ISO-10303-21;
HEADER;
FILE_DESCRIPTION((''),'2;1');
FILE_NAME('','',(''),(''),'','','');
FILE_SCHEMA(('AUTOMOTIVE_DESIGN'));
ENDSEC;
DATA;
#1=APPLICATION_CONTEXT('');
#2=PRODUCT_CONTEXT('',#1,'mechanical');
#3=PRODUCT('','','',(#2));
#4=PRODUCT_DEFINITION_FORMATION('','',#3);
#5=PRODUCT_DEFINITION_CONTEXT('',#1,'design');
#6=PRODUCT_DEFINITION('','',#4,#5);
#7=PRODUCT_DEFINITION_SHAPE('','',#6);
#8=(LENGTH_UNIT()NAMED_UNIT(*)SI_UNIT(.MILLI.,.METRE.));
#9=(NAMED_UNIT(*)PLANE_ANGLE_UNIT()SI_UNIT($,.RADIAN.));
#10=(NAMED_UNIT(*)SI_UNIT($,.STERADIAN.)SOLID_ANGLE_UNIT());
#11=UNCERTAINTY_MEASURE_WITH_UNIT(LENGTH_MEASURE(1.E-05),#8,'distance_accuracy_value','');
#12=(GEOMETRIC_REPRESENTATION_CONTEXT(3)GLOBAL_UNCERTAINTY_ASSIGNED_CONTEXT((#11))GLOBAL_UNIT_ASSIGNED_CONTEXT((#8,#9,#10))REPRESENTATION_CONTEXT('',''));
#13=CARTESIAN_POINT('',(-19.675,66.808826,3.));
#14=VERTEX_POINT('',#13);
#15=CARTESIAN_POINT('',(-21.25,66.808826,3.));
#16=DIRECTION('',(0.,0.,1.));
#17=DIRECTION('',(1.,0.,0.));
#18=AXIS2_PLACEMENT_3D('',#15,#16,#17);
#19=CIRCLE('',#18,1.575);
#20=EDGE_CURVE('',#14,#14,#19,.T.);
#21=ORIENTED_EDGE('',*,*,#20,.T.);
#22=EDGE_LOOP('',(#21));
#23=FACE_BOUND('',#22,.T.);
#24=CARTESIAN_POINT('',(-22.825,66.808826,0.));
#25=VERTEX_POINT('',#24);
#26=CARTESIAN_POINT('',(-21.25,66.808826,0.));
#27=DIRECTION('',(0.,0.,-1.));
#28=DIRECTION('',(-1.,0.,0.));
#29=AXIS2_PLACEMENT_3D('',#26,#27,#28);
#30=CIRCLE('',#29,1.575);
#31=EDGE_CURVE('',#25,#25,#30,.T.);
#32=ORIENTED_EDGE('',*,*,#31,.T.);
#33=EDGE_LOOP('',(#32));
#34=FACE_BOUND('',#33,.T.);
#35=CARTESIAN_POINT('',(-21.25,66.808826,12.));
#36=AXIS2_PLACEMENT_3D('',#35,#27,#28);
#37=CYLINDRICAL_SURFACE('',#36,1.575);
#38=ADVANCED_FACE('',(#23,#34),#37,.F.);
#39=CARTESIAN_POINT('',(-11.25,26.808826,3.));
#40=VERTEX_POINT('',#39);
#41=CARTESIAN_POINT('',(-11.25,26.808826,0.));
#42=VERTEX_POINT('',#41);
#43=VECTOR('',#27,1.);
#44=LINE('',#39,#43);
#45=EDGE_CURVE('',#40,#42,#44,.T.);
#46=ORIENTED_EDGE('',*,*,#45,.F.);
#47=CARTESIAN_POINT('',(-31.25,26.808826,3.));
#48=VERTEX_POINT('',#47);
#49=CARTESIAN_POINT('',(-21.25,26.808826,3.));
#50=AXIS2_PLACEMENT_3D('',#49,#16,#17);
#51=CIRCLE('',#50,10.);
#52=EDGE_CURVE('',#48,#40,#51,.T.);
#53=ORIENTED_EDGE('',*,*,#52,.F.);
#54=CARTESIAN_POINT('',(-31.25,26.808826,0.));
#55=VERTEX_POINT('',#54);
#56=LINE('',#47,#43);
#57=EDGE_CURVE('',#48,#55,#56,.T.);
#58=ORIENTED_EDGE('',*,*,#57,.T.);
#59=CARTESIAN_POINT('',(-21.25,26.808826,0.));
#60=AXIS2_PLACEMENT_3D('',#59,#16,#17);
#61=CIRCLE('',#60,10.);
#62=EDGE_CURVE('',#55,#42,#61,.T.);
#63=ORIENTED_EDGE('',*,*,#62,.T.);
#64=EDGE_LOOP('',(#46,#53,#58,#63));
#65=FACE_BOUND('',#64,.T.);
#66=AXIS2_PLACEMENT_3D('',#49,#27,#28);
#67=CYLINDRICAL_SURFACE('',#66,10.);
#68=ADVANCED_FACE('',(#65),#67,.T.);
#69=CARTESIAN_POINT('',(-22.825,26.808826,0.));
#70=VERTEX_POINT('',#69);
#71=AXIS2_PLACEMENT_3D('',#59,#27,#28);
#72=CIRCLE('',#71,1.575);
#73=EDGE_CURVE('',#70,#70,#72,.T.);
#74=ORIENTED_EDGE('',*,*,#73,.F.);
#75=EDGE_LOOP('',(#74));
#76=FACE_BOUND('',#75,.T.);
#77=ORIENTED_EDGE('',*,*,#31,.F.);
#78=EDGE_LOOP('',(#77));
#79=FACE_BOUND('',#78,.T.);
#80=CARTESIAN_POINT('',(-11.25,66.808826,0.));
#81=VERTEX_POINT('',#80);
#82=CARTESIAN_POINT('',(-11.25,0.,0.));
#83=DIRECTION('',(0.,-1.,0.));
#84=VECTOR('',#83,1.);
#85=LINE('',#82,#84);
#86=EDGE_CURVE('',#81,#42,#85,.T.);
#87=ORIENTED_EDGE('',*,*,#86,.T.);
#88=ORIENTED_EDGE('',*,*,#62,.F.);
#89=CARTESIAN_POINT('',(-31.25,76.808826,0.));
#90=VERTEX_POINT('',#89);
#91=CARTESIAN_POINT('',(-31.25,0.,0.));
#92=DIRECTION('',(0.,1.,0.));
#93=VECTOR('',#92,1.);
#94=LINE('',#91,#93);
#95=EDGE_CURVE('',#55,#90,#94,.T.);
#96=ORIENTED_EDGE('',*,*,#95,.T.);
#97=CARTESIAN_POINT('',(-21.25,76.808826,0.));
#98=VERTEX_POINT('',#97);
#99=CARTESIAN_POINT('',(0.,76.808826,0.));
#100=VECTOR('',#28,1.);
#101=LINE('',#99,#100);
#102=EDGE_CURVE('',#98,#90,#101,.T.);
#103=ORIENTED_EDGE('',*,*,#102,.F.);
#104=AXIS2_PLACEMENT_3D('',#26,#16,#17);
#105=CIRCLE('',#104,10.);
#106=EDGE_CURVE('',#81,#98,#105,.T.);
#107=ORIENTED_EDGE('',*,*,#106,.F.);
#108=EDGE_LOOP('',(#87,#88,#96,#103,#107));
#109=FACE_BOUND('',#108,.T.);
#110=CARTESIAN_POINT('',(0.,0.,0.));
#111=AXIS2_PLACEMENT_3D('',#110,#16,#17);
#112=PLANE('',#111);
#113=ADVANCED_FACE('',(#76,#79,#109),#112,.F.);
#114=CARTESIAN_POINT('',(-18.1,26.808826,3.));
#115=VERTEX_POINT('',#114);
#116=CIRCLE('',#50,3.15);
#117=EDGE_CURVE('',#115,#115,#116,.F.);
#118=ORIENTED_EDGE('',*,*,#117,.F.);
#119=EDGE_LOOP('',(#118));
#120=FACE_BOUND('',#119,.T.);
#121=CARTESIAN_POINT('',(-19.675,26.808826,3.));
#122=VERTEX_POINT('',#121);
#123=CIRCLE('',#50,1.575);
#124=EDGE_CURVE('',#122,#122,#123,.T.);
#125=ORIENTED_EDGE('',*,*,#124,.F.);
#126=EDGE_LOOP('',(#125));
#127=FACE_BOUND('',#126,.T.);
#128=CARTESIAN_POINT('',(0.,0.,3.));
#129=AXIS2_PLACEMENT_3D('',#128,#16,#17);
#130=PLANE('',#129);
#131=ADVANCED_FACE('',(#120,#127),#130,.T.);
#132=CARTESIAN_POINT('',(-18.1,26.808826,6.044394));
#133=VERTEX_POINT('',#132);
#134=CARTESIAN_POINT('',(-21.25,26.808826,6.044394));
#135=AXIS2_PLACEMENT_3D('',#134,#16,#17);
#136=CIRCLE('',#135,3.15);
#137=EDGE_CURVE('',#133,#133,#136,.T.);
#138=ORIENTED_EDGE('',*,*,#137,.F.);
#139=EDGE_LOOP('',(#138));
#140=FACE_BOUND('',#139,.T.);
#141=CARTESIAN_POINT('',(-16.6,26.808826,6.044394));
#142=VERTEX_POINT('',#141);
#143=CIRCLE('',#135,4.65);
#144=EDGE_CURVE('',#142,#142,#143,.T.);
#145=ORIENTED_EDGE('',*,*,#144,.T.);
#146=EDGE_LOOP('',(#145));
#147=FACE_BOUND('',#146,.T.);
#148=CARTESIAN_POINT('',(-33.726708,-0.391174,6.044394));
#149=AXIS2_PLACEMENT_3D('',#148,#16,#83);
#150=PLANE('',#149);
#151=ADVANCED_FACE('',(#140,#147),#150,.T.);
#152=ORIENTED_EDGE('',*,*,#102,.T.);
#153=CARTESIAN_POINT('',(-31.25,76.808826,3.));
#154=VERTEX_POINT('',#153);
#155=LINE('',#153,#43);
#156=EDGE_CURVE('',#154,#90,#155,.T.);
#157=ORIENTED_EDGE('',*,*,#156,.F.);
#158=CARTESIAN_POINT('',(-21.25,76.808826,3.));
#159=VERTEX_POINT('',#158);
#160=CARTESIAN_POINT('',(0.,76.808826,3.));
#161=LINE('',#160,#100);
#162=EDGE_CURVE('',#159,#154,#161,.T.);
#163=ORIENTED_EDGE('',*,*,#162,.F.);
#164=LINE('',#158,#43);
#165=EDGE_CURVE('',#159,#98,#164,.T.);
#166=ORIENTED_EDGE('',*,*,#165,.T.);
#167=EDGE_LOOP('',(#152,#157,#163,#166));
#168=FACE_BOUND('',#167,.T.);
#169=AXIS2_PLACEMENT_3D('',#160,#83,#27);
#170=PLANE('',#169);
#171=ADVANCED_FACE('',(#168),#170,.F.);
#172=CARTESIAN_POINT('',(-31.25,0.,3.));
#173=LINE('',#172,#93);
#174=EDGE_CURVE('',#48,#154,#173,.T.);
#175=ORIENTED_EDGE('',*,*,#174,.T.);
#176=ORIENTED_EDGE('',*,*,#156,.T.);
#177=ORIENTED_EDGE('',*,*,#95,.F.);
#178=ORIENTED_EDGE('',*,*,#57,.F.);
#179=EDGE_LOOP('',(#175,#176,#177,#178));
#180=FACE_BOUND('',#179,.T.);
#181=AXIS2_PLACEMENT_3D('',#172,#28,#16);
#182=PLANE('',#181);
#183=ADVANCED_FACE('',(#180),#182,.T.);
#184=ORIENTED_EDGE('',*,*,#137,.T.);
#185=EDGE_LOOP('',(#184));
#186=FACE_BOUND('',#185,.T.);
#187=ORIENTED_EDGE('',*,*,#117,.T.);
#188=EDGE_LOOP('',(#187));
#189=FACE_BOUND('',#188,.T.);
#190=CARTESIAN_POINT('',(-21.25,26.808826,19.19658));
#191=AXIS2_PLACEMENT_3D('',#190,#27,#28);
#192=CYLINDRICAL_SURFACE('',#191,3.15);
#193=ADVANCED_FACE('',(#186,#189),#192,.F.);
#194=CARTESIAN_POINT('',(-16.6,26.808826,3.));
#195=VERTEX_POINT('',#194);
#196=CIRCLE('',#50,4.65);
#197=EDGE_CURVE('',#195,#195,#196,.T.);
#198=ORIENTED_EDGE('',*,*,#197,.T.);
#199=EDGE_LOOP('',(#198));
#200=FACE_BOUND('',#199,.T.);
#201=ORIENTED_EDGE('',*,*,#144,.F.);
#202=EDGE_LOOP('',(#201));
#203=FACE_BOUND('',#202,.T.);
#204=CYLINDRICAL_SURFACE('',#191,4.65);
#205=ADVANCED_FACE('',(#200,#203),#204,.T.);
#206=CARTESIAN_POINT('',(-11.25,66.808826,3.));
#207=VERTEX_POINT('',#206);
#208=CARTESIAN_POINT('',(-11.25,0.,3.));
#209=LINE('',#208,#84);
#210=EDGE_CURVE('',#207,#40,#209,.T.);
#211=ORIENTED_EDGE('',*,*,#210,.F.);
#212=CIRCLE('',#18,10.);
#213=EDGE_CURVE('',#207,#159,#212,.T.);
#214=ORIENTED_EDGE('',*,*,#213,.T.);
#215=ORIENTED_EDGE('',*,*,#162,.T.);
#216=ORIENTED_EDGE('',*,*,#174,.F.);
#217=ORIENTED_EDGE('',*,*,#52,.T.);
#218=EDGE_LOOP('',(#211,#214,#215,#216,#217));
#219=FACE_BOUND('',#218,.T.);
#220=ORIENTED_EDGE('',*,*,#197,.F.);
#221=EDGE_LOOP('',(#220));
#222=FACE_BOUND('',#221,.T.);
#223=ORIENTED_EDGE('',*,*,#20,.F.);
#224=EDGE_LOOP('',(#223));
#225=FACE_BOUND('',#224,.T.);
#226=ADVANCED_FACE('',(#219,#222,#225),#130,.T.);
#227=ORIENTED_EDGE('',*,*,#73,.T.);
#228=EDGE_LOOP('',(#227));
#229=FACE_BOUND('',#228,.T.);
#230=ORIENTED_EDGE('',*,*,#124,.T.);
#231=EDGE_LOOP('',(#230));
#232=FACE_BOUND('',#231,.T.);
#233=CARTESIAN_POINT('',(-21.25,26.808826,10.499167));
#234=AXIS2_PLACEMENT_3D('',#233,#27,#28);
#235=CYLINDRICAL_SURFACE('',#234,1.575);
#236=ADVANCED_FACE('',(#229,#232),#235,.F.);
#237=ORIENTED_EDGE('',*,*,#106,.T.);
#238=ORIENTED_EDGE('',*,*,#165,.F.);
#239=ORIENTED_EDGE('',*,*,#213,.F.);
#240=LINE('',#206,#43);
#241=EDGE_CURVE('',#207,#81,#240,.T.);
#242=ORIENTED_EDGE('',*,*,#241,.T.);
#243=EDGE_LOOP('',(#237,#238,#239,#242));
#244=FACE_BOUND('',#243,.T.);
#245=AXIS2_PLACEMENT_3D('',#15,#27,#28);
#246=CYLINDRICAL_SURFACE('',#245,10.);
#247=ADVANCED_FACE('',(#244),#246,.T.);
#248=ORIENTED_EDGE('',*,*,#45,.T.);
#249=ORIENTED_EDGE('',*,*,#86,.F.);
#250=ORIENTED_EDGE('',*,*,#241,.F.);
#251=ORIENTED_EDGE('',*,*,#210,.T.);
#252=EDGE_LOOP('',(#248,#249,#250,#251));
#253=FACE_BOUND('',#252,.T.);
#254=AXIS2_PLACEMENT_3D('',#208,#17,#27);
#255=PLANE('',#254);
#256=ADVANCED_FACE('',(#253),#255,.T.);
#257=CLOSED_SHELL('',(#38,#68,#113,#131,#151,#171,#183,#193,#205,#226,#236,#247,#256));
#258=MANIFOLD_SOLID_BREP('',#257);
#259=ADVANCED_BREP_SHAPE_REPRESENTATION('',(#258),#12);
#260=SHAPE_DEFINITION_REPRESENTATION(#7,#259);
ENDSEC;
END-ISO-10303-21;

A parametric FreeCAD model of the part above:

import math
import FreeCAD as App
import Part
import Sketcher

V = App.Vector

doc = App.newDocument("Part")
body = doc.addObject("PartDesign::Body", "Body")

sketch1 = doc.addObject("Sketcher::SketchObject", "Sketch")
body.addObject(sketch1)
sketch1.AttachmentSupport = (doc.XY_Plane, [""])
sketch1.MapMode = "FlatFace"
sketch1.addGeometry([
    Part.LineSegment(V(-31, 77, 0), V(-31, 27, 0)),
    Part.ArcOfCircle(Part.Circle(V(-21, 27, 0), V(0, 0, 1), 10), math.radians(180), math.radians(360)),
    Part.LineSegment(V(-11, 27, 0), V(-11, 67, 0)),
    Part.ArcOfCircle(Part.Circle(V(-21, 67, 0), V(0, 0, 1), 10), math.radians(0), math.radians(90)),
    Part.LineSegment(V(-21, 77, 0), V(-31, 77, 0)),
], False)
sketch1.addConstraint([
    Sketcher.Constraint("Tangent", 0, 2, 1, 1),
    Sketcher.Constraint("Tangent", 1, 2, 2, 1),
    Sketcher.Constraint("Tangent", 2, 2, 3, 1),
    Sketcher.Constraint("Tangent", 3, 2, 4, 1),
    Sketcher.Constraint("Coincident", 4, 2, 0, 1),
    Sketcher.Constraint("Vertical", 0),
    Sketcher.Constraint("Vertical", 2),
    Sketcher.Constraint("Horizontal", 4),
    Sketcher.Constraint("Equal", 1, 3),
    Sketcher.Constraint("Radius", 1, 10.0),
    Sketcher.Constraint("DistanceY", 0, 2, 0, 1, 50.0),
    Sketcher.Constraint("DistanceX", 1, 3, -1, 1, 21.25),
    Sketcher.Constraint("DistanceY", -1, 1, 1, 3, 26.808826),
])
pad1 = doc.addObject("PartDesign::Pad", "Pad")
body.addObject(pad1)
pad1.Profile = sketch1
pad1.Length = 3

sketch2 = doc.addObject("Sketcher::SketchObject", "Sketch001")
body.addObject(sketch2)
sketch2.AttachmentSupport = (doc.XY_Plane, [""])
sketch2.MapMode = "FlatFace"
sketch2.AttachmentOffset = App.Placement(V(0, 0, 3), App.Rotation())
sketch2.addGeometry([
    Part.Circle(V(-21.2, 26.8, 0), V(0, 0, 1), 4.7),
    Part.Circle(V(-21.2, 26.8, 0), V(0, 0, 1), 3.1),
], False)
sketch2.addConstraint([
    Sketcher.Constraint("Coincident", 1, 3, 0, 3),
    Sketcher.Constraint("Diameter", 0, 9.3),
    Sketcher.Constraint("Diameter", 1, 6.3),
    Sketcher.Constraint("DistanceX", 0, 3, -1, 1, 21.25),
    Sketcher.Constraint("DistanceY", -1, 1, 0, 3, 26.808826),
])
pad2 = doc.addObject("PartDesign::Pad", "Pad001")
body.addObject(pad2)
pad2.Profile = sketch2
pad2.Length = 3.044394

sketch3 = doc.addObject("Sketcher::SketchObject", "Sketch002")
body.addObject(sketch3)
sketch3.AttachmentSupport = (doc.XY_Plane, [""])
sketch3.MapMode = "FlatFace"
sketch3.addGeometry(Part.Circle(V(-21.2, 26.8, 0), V(0, 0, 1), 1.6), False)
sketch3.addConstraint([
    Sketcher.Constraint("Diameter", 0, 3.15),
    Sketcher.Constraint("DistanceX", 0, 3, -1, 1, 21.25),
    Sketcher.Constraint("DistanceY", -1, 1, 0, 3, 26.808826),
])
pocket1 = doc.addObject("PartDesign::Pocket", "Pocket")
body.addObject(pocket1)
pocket1.Profile = sketch3
pocket1.Length = 6.044394
pocket1.Reversed = True

sketch4 = doc.addObject("Sketcher::SketchObject", "Sketch003")
body.addObject(sketch4)
sketch4.AttachmentSupport = (doc.XY_Plane, [""])
sketch4.MapMode = "FlatFace"
sketch4.addGeometry(Part.Circle(V(-21.2, 66.8, 0), V(0, 0, 1), 1.6), False)
sketch4.addConstraint([
    Sketcher.Constraint("Diameter", 0, 3.15),
    Sketcher.Constraint("DistanceX", 0, 3, -1, 1, 21.25),
    Sketcher.Constraint("DistanceY", -1, 1, 0, 3, 66.808826),
])
pocket2 = doc.addObject("PartDesign::Pocket", "Pocket001")
body.addObject(pocket2)
pocket2.Profile = sketch4
pocket2.Length = 12
pocket2.Reversed = True

doc.recompute()
